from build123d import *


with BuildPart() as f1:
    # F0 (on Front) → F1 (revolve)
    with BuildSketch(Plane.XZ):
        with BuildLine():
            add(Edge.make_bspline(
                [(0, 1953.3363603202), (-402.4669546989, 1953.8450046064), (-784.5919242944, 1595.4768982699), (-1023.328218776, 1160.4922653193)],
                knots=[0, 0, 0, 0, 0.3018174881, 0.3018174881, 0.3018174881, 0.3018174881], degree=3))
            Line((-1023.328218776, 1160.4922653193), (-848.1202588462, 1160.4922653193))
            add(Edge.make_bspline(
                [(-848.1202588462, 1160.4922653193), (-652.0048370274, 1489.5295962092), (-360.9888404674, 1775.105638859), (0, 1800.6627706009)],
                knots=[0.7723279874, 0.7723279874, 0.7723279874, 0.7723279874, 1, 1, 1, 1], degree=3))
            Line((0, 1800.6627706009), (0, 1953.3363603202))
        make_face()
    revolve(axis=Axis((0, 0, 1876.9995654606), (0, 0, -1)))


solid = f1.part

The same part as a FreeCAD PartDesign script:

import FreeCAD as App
import Part
import Sketcher

V = App.Vector

doc = App.newDocument("Part")
body = doc.addObject("PartDesign::Body", "Body")

# Sketch on XZ plane
sketch1 = body.newObject("Sketcher::SketchObject", "Sketch")
sketch1.AttachmentSupport = (doc.getObject("XZ_Plane"), [""])
sketch1.MapMode = "FlatFace"
sketch1.addGeometry([
    Part.BSplineCurve([V(0, 1953.33636, 0), V(-402.466955, 1953.845005, 0), V(-784.591924, 1595.476898, 0), V(-1023.328219, 1160.492265, 0)], [4, 4], [0, 0.301817488], False, 3, [1, 1, 1, 1], False),
    Part.LineSegment(V(-1023.328219, 1160.492265, 0), V(-848.120259, 1160.492265, 0)),
    Part.BSplineCurve([V(-848.120259, 1160.492265, 0), V(-652.004837, 1489.529596, 0), V(-360.98884, 1775.105639, 0), V(0, 1800.662771, 0)], [4, 4], [0.772327987, 1], False, 3, [1, 1, 1, 1], False),
    Part.LineSegment(V(0, 1800.662771, 0), V(0, 1953.33636, 0)),
], False)
sketch1.addConstraint([
    Sketcher.Constraint("Block", 0),
    Sketcher.Constraint("Block", 2),
    Sketcher.Constraint("Coincident", 0, 2, 1, 1),
    Sketcher.Constraint("Coincident", 1, 2, 2, 1),
    Sketcher.Constraint("Coincident", 2, 2, 3, 1),
    Sketcher.Constraint("Coincident", 3, 2, 0, 1),
])
revolution = body.newObject("PartDesign::Revolution", "Revolution")
revolution.Profile = sketch1
revolution.ReferenceAxis = (sketch1, ["V_Axis"])
revolution.Angle = 360

doc.recompute()
